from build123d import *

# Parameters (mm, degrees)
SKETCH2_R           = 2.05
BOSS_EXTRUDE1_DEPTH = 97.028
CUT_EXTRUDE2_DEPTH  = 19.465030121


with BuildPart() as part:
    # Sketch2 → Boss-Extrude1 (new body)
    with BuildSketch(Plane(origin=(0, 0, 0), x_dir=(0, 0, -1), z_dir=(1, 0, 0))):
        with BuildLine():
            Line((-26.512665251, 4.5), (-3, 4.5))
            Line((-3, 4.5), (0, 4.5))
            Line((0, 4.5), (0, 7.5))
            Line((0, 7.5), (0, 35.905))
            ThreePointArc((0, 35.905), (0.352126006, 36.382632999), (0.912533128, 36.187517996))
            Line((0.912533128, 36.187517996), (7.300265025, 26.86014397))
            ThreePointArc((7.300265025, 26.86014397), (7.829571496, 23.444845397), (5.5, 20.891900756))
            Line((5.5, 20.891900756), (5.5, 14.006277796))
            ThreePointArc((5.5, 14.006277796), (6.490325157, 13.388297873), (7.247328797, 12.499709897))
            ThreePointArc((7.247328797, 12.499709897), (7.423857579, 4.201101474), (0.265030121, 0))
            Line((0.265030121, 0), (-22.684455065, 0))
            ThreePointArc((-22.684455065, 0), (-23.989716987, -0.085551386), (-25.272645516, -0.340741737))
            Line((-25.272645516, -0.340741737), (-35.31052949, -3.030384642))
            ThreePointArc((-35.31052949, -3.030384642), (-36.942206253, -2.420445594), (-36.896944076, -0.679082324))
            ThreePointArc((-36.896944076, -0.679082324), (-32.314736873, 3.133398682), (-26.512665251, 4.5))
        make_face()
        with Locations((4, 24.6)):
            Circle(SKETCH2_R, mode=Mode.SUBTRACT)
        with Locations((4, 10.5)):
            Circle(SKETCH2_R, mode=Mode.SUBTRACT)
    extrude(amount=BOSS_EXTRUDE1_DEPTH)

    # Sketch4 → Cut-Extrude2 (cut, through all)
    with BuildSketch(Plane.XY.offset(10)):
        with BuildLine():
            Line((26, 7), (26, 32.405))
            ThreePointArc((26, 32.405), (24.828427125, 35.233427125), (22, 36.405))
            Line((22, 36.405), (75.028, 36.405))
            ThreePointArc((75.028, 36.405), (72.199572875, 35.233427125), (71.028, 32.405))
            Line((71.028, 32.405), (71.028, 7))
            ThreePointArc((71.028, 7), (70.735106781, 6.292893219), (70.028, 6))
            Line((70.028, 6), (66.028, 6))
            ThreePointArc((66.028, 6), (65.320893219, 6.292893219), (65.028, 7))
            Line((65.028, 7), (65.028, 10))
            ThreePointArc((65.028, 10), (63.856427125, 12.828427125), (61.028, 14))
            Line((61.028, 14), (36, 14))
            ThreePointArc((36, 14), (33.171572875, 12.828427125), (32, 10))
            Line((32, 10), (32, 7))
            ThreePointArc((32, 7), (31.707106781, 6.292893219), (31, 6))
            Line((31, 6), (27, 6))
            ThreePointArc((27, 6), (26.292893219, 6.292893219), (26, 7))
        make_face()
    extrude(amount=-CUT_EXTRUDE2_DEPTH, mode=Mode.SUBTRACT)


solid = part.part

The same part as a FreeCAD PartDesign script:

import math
import FreeCAD as App
import Part
import Sketcher

V = App.Vector
Q = App.Units.Quantity

doc = App.newDocument("Part")
params = doc.addObject("Spreadsheet::Sheet", "Params")
for row, (alias, value) in enumerate([
    ("sketch1_radius", "13 mm"),
    ("sketch1_radius2", "10 mm"),
    ("sketch1_radius3", "4 mm"),
    ("sketch1_diameter", "4.1 mm"),
    ("sketch1_radius4", "1.5 mm"),
    ("pad1_length", "97.028 mm"),
    ("sketch2_radius", "1 mm"),
    ("sketch2_radius2", "4 mm"),
    ("sketch2_width", "4 mm"),
    ("sketch2_height", "3 mm"),
], start=1):
    params.set(f"A{row}", alias)
    params.set(f"B{row}", "=" + value)
    params.setAlias(f"B{row}", alias)

body = doc.addObject("PartDesign::Body", "Body")

# Sketch on YZ plane
sketch1 = doc.addObject("Sketcher::SketchObject", "Sketch")
body.addObject(sketch1)
sketch1.AttachmentSupport = (doc.YZ_Plane, [""])
sketch1.MapMode = "FlatFace"
sketch1.addGeometry([
    Part.LineSegment(V(4.5, 0, 0), V(4.5, 26.512665, 0)),  # 0
    Part.ArcOfCircle(Part.Circle(V(-8.5, 26.512665, 0), V(0, 0, 1), 13), math.radians(0), math.radians(53.014775)),  # 1
    Part.ArcOfCircle(Part.Circle(V(-1.581496, 35.698758, 0), V(0, 0, 1), 1.5), math.radians(53.014775), math.radians(195)),  # 2
    Part.LineSegment(V(-3.030385, 35.310529, 0), V(-0.340742, 25.272646, 0)),  # 3
    Part.ArcOfCircle(Part.Circle(V(-10, 22.684455, 0), V(0, 0, 1), 10), math.radians(0), math.radians(15)),  # 4
    Part.LineSegment(V(0, 22.684455, 0), V(0, -0.26503, 0)),  # 5
    Part.ArcOfCircle(Part.Circle(V(8.2, -0.26503, 0), V(0, 0, 1), 8.2), math.radians(-180), math.radians(-58.375177)),  # 6
    Part.ArcOfCircle(Part.Circle(V(10.5, -4, 0), V(0, 0, 1), 3.813658), math.radians(-58.375177), math.radians(-23.161437)),  # 7
    Part.LineSegment(V(14.006278, -5.5, 0), V(20.891901, -5.5, 0)),  # 8
    Part.ArcOfCircle(Part.Circle(V(24.6, -4, 0), V(0, 0, 1), 4), math.radians(-157.975687), math.radians(-55.595209)),  # 9
    Part.LineSegment(V(26.860144, -7.300265, 0), V(36.187518, -0.912533, 0)),  # 10
    Part.ArcOfCircle(Part.Circle(V(35.905, -0.5, 0), V(0, 0, 1), 0.5), math.radians(-55.595209), math.radians(90)),  # 11
    Part.LineSegment(V(35.905, 0, 0), V(4.5, 0, 0)),  # 12
    Part.Circle(V(10.5, -4, 0), V(0, 0, 1), 2.05),  # 13
    Part.Circle(V(24.6, -4, 0), V(0, 0, 1), 2.05),  # 14
], False)
sketch1.addConstraint([
    Sketcher.Constraint("Tangent", 0, 2, 1, 1),
    Sketcher.Constraint("Tangent", 1, 2, 2, 1),
    Sketcher.Constraint("Tangent", 2, 2, 3, 1),
    Sketcher.Constraint("Tangent", 3, 2, 4, 2),
    Sketcher.Constraint("Tangent", 4, 1, 5, 1),
    Sketcher.Constraint("Tangent", 5, 2, 6, 1),
    Sketcher.Constraint("Tangent", 6, 2, 7, 1),
    Sketcher.Constraint("Coincident", 7, 2, 8, 1),
    Sketcher.Constraint("Coincident", 8, 2, 9, 1),
    Sketcher.Constraint("Tangent", 9, 2, 10, 1),
    Sketcher.Constraint("Tangent", 10, 2, 11, 1),
    Sketcher.Constraint("Tangent", 11, 2, 12, 1),
    Sketcher.Constraint("Coincident", 12, 2, 0, 1),
    Sketcher.Constraint("Vertical", 0),
    Sketcher.Constraint("Vertical", 5),
    Sketcher.Constraint("Horizontal", 8),
    Sketcher.Constraint("Horizontal", 12),
    Sketcher.Constraint("Coincident", 13, 3, 7, 3),
    Sketcher.Constraint("Coincident", 14, 3, 9, 3),
    Sketcher.Constraint("Equal", 13, 14),
    Sketcher.Constraint("PointOnObject", 4, 1, -2),
    Sketcher.Constraint("PointOnObject", 11, 2, -1),
    Sketcher.Constraint("Horizontal", 7, 3, 9, 3),
    Sketcher.Constraint("Radius", 1, Q("13 mm")),
    Sketcher.Constraint("Radius", 4, Q("10 mm")),
    Sketcher.Constraint("Radius", 9, Q("4 mm")),
    Sketcher.Constraint("Diameter", 13, Q("4.1 mm")),
    Sketcher.Constraint("Radius", 2, Q("1.5 mm")),
    Sketcher.Constraint("Radius", 6, Q("8.2 mm")),
    Sketcher.Constraint("Radius", 11, Q("0.5 mm")),
    Sketcher.Constraint("Angle", 3, Q("-75 deg")),
    Sketcher.Constraint("DistanceY", 7, 3, -1, 1, Q("4 mm")),
    Sketcher.Constraint("DistanceX", 1, 3, 7, 3, Q("19 mm")),
    Sketcher.Constraint("DistanceX", 1, 3, -1, 1, Q("8.5 mm")),
    Sketcher.Constraint("DistanceX", -1, 1, 9, 3, Q("24.6 mm")),
    Sketcher.Constraint("DistanceY", 7, 2, -1, 1, Q("5.5 mm")),
    Sketcher.Constraint("DistanceX", 12, 2, 12, 1, Q("31.405 mm")),
    Sketcher.Constraint("Radius", 7, Q("3.813658 mm")),
    Sketcher.Constraint("DistanceY", 0, 1, 0, 2, Q("26.512665 mm")),
    Sketcher.Constraint("DistanceY", 5, 2, 5, 1, Q("22.949485 mm")),
])
sketch1.setExpression("Constraints[23]", "Params.sketch1_radius")
sketch1.setExpression("Constraints[24]", "Params.sketch1_radius2")
sketch1.setExpression("Constraints[25]", "Params.sketch1_radius3")
sketch1.setExpression("Constraints[26]", "Params.sketch1_diameter")
sketch1.setExpression("Constraints[27]", "Params.sketch1_radius4")
pad1 = doc.addObject("PartDesign::Pad", "Pad")
body.addObject(pad1)
pad1.Profile = sketch1
pad1.setExpression("Length", "Params.pad1_length")

# Sketch on XY plane
sketch2 = doc.addObject("Sketcher::SketchObject", "Sketch001")
body.addObject(sketch2)
sketch2.AttachmentSupport = (doc.XY_Plane, [""])
sketch2.MapMode = "FlatFace"
sketch2.AttachmentOffset = App.Placement(V(0, 0, 10), App.Rotation())
sketch2.addGeometry([
    Part.LineSegment(V(26, 32.405, 0), V(26, 7, 0)),  # 0
    Part.ArcOfCircle(Part.Circle(V(27, 7, 0), V(0, 0, 1), 1), math.radians(-180), math.radians(-90)),  # 1
    Part.LineSegment(V(27, 6, 0), V(31, 6, 0)),  # 2
    Part.ArcOfCircle(Part.Circle(V(31, 7, 0), V(0, 0, 1), 1), math.radians(-90), math.radians(0)),  # 3
    Part.LineSegment(V(32, 7, 0), V(32, 10, 0)),  # 4
    Part.ArcOfCircle(Part.Circle(V(36, 10, 0), V(0, 0, 1), 4), math.radians(90), math.radians(180)),  # 5
    Part.LineSegment(V(36, 14, 0), V(61.028, 14, 0)),  # 6
    Part.ArcOfCircle(Part.Circle(V(61.028, 10, 0), V(0, 0, 1), 4), math.radians(0), math.radians(90)),  # 7
    Part.LineSegment(V(65.028, 10, 0), V(65.028, 7, 0)),  # 8
    Part.ArcOfCircle(Part.Circle(V(66.028, 7, 0), V(0, 0, 1), 1), math.radians(-180), math.radians(-90)),  # 9
    Part.LineSegment(V(66.028, 6, 0), V(70.028, 6, 0)),  # 10
    Part.ArcOfCircle(Part.Circle(V(70.028, 7, 0), V(0, 0, 1), 1), math.radians(-90), math.radians(0)),  # 11
    Part.LineSegment(V(71.028, 7, 0), V(71.028, 32.405, 0)),  # 12
    Part.ArcOfCircle(Part.Circle(V(75.028, 32.405, 0), V(0, 0, 1), 4), math.radians(90), math.radians(180)),  # 13
    Part.LineSegment(V(75.028, 36.405, 0), V(22, 36.405, 0)),  # 14
    Part.ArcOfCircle(Part.Circle(V(22, 32.405, 0), V(0, 0, 1), 4), math.radians(0), math.radians(90)),  # 15
], False)
sketch2.addConstraint([
    Sketcher.Constraint("Tangent", 0, 2, 1, 1),
    Sketcher.Constraint("Tangent", 1, 2, 2, 1),
    Sketcher.Constraint("Tangent", 2, 2, 3, 1),
    Sketcher.Constraint("Tangent", 3, 2, 4, 1),
    Sketcher.Constraint("Tangent", 4, 2, 5, 2),
    Sketcher.Constraint("Tangent", 5, 1, 6, 1),
    Sketcher.Constraint("Tangent", 6, 2, 7, 2),
    Sketcher.Constraint("Tangent", 7, 1, 8, 1),
    Sketcher.Constraint("Tangent", 8, 2, 9, 1),
    Sketcher.Constraint("Tangent", 9, 2, 10, 1),
    Sketcher.Constraint("Tangent", 10, 2, 11, 1),
    Sketcher.Constraint("Tangent", 11, 2, 12, 1),
    Sketcher.Constraint("Tangent", 12, 2, 13, 2),
    Sketcher.Constraint("Tangent", 13, 1, 14, 1),
    Sketcher.Constraint("Tangent", 14, 2, 15, 2),
    Sketcher.Constraint("Tangent", 15, 1, 0, 1),
    Sketcher.Constraint("Vertical", 0),
    Sketcher.Constraint("Horizontal", 2),
    Sketcher.Constraint("Vertical", 4),
    Sketcher.Constraint("Horizontal", 6),
    Sketcher.Constraint("Vertical", 8),
    Sketcher.Constraint("Horizontal", 10),
    Sketcher.Constraint("Vertical", 12),
    Sketcher.Constraint("Horizontal", 14),
    Sketcher.Constraint("Equal", 1, 3),
    Sketcher.Constraint("Equal", 5, 7),
    Sketcher.Constraint("Equal", 3, 9),
    Sketcher.Constraint("Equal", 9, 11),
    Sketcher.Constraint("Equal", 7, 13),
    Sketcher.Constraint("Equal", 13, 15),
    Sketcher.Constraint("Horizontal", 3, 3, 9, 3),
    Sketcher.Constraint("Equal", 2, 10),
    Sketcher.Constraint("Radius", 1, Q("1 mm")),
    Sketcher.Constraint("Radius", 5, Q("4 mm")),
    Sketcher.Constraint("DistanceX", 2, 1, 2, 2, Q("4 mm")),
    Sketcher.Constraint("DistanceY", 4, 1, 4, 2, Q("3 mm")),
    Sketcher.Constraint("DistanceX", -1, 1, 1, 3, Q("27 mm")),
    Sketcher.Constraint("DistanceY", -1, 1, 1, 3, Q("7 mm")),
    Sketcher.Constraint("DistanceX", 6, 1, 6, 2, Q("25.028 mm")),
    Sketcher.Constraint("DistanceY", 0, 2, 0, 1, Q("25.405 mm")),
])
sketch2.setExpression("Constraints[32]", "Params.sketch2_radius")
sketch2.setExpression("Constraints[33]", "Params.sketch2_radius2")
sketch2.setExpression("Constraints[34]", "Params.sketch2_width")
sketch2.setExpression("Constraints[35]", "Params.sketch2_height")
pocket1 = doc.addObject("PartDesign::Pocket", "Pocket")
body.addObject(pocket1)
pocket1.Profile = sketch2
pocket1.Type = "ThroughAll"

doc.recompute()
